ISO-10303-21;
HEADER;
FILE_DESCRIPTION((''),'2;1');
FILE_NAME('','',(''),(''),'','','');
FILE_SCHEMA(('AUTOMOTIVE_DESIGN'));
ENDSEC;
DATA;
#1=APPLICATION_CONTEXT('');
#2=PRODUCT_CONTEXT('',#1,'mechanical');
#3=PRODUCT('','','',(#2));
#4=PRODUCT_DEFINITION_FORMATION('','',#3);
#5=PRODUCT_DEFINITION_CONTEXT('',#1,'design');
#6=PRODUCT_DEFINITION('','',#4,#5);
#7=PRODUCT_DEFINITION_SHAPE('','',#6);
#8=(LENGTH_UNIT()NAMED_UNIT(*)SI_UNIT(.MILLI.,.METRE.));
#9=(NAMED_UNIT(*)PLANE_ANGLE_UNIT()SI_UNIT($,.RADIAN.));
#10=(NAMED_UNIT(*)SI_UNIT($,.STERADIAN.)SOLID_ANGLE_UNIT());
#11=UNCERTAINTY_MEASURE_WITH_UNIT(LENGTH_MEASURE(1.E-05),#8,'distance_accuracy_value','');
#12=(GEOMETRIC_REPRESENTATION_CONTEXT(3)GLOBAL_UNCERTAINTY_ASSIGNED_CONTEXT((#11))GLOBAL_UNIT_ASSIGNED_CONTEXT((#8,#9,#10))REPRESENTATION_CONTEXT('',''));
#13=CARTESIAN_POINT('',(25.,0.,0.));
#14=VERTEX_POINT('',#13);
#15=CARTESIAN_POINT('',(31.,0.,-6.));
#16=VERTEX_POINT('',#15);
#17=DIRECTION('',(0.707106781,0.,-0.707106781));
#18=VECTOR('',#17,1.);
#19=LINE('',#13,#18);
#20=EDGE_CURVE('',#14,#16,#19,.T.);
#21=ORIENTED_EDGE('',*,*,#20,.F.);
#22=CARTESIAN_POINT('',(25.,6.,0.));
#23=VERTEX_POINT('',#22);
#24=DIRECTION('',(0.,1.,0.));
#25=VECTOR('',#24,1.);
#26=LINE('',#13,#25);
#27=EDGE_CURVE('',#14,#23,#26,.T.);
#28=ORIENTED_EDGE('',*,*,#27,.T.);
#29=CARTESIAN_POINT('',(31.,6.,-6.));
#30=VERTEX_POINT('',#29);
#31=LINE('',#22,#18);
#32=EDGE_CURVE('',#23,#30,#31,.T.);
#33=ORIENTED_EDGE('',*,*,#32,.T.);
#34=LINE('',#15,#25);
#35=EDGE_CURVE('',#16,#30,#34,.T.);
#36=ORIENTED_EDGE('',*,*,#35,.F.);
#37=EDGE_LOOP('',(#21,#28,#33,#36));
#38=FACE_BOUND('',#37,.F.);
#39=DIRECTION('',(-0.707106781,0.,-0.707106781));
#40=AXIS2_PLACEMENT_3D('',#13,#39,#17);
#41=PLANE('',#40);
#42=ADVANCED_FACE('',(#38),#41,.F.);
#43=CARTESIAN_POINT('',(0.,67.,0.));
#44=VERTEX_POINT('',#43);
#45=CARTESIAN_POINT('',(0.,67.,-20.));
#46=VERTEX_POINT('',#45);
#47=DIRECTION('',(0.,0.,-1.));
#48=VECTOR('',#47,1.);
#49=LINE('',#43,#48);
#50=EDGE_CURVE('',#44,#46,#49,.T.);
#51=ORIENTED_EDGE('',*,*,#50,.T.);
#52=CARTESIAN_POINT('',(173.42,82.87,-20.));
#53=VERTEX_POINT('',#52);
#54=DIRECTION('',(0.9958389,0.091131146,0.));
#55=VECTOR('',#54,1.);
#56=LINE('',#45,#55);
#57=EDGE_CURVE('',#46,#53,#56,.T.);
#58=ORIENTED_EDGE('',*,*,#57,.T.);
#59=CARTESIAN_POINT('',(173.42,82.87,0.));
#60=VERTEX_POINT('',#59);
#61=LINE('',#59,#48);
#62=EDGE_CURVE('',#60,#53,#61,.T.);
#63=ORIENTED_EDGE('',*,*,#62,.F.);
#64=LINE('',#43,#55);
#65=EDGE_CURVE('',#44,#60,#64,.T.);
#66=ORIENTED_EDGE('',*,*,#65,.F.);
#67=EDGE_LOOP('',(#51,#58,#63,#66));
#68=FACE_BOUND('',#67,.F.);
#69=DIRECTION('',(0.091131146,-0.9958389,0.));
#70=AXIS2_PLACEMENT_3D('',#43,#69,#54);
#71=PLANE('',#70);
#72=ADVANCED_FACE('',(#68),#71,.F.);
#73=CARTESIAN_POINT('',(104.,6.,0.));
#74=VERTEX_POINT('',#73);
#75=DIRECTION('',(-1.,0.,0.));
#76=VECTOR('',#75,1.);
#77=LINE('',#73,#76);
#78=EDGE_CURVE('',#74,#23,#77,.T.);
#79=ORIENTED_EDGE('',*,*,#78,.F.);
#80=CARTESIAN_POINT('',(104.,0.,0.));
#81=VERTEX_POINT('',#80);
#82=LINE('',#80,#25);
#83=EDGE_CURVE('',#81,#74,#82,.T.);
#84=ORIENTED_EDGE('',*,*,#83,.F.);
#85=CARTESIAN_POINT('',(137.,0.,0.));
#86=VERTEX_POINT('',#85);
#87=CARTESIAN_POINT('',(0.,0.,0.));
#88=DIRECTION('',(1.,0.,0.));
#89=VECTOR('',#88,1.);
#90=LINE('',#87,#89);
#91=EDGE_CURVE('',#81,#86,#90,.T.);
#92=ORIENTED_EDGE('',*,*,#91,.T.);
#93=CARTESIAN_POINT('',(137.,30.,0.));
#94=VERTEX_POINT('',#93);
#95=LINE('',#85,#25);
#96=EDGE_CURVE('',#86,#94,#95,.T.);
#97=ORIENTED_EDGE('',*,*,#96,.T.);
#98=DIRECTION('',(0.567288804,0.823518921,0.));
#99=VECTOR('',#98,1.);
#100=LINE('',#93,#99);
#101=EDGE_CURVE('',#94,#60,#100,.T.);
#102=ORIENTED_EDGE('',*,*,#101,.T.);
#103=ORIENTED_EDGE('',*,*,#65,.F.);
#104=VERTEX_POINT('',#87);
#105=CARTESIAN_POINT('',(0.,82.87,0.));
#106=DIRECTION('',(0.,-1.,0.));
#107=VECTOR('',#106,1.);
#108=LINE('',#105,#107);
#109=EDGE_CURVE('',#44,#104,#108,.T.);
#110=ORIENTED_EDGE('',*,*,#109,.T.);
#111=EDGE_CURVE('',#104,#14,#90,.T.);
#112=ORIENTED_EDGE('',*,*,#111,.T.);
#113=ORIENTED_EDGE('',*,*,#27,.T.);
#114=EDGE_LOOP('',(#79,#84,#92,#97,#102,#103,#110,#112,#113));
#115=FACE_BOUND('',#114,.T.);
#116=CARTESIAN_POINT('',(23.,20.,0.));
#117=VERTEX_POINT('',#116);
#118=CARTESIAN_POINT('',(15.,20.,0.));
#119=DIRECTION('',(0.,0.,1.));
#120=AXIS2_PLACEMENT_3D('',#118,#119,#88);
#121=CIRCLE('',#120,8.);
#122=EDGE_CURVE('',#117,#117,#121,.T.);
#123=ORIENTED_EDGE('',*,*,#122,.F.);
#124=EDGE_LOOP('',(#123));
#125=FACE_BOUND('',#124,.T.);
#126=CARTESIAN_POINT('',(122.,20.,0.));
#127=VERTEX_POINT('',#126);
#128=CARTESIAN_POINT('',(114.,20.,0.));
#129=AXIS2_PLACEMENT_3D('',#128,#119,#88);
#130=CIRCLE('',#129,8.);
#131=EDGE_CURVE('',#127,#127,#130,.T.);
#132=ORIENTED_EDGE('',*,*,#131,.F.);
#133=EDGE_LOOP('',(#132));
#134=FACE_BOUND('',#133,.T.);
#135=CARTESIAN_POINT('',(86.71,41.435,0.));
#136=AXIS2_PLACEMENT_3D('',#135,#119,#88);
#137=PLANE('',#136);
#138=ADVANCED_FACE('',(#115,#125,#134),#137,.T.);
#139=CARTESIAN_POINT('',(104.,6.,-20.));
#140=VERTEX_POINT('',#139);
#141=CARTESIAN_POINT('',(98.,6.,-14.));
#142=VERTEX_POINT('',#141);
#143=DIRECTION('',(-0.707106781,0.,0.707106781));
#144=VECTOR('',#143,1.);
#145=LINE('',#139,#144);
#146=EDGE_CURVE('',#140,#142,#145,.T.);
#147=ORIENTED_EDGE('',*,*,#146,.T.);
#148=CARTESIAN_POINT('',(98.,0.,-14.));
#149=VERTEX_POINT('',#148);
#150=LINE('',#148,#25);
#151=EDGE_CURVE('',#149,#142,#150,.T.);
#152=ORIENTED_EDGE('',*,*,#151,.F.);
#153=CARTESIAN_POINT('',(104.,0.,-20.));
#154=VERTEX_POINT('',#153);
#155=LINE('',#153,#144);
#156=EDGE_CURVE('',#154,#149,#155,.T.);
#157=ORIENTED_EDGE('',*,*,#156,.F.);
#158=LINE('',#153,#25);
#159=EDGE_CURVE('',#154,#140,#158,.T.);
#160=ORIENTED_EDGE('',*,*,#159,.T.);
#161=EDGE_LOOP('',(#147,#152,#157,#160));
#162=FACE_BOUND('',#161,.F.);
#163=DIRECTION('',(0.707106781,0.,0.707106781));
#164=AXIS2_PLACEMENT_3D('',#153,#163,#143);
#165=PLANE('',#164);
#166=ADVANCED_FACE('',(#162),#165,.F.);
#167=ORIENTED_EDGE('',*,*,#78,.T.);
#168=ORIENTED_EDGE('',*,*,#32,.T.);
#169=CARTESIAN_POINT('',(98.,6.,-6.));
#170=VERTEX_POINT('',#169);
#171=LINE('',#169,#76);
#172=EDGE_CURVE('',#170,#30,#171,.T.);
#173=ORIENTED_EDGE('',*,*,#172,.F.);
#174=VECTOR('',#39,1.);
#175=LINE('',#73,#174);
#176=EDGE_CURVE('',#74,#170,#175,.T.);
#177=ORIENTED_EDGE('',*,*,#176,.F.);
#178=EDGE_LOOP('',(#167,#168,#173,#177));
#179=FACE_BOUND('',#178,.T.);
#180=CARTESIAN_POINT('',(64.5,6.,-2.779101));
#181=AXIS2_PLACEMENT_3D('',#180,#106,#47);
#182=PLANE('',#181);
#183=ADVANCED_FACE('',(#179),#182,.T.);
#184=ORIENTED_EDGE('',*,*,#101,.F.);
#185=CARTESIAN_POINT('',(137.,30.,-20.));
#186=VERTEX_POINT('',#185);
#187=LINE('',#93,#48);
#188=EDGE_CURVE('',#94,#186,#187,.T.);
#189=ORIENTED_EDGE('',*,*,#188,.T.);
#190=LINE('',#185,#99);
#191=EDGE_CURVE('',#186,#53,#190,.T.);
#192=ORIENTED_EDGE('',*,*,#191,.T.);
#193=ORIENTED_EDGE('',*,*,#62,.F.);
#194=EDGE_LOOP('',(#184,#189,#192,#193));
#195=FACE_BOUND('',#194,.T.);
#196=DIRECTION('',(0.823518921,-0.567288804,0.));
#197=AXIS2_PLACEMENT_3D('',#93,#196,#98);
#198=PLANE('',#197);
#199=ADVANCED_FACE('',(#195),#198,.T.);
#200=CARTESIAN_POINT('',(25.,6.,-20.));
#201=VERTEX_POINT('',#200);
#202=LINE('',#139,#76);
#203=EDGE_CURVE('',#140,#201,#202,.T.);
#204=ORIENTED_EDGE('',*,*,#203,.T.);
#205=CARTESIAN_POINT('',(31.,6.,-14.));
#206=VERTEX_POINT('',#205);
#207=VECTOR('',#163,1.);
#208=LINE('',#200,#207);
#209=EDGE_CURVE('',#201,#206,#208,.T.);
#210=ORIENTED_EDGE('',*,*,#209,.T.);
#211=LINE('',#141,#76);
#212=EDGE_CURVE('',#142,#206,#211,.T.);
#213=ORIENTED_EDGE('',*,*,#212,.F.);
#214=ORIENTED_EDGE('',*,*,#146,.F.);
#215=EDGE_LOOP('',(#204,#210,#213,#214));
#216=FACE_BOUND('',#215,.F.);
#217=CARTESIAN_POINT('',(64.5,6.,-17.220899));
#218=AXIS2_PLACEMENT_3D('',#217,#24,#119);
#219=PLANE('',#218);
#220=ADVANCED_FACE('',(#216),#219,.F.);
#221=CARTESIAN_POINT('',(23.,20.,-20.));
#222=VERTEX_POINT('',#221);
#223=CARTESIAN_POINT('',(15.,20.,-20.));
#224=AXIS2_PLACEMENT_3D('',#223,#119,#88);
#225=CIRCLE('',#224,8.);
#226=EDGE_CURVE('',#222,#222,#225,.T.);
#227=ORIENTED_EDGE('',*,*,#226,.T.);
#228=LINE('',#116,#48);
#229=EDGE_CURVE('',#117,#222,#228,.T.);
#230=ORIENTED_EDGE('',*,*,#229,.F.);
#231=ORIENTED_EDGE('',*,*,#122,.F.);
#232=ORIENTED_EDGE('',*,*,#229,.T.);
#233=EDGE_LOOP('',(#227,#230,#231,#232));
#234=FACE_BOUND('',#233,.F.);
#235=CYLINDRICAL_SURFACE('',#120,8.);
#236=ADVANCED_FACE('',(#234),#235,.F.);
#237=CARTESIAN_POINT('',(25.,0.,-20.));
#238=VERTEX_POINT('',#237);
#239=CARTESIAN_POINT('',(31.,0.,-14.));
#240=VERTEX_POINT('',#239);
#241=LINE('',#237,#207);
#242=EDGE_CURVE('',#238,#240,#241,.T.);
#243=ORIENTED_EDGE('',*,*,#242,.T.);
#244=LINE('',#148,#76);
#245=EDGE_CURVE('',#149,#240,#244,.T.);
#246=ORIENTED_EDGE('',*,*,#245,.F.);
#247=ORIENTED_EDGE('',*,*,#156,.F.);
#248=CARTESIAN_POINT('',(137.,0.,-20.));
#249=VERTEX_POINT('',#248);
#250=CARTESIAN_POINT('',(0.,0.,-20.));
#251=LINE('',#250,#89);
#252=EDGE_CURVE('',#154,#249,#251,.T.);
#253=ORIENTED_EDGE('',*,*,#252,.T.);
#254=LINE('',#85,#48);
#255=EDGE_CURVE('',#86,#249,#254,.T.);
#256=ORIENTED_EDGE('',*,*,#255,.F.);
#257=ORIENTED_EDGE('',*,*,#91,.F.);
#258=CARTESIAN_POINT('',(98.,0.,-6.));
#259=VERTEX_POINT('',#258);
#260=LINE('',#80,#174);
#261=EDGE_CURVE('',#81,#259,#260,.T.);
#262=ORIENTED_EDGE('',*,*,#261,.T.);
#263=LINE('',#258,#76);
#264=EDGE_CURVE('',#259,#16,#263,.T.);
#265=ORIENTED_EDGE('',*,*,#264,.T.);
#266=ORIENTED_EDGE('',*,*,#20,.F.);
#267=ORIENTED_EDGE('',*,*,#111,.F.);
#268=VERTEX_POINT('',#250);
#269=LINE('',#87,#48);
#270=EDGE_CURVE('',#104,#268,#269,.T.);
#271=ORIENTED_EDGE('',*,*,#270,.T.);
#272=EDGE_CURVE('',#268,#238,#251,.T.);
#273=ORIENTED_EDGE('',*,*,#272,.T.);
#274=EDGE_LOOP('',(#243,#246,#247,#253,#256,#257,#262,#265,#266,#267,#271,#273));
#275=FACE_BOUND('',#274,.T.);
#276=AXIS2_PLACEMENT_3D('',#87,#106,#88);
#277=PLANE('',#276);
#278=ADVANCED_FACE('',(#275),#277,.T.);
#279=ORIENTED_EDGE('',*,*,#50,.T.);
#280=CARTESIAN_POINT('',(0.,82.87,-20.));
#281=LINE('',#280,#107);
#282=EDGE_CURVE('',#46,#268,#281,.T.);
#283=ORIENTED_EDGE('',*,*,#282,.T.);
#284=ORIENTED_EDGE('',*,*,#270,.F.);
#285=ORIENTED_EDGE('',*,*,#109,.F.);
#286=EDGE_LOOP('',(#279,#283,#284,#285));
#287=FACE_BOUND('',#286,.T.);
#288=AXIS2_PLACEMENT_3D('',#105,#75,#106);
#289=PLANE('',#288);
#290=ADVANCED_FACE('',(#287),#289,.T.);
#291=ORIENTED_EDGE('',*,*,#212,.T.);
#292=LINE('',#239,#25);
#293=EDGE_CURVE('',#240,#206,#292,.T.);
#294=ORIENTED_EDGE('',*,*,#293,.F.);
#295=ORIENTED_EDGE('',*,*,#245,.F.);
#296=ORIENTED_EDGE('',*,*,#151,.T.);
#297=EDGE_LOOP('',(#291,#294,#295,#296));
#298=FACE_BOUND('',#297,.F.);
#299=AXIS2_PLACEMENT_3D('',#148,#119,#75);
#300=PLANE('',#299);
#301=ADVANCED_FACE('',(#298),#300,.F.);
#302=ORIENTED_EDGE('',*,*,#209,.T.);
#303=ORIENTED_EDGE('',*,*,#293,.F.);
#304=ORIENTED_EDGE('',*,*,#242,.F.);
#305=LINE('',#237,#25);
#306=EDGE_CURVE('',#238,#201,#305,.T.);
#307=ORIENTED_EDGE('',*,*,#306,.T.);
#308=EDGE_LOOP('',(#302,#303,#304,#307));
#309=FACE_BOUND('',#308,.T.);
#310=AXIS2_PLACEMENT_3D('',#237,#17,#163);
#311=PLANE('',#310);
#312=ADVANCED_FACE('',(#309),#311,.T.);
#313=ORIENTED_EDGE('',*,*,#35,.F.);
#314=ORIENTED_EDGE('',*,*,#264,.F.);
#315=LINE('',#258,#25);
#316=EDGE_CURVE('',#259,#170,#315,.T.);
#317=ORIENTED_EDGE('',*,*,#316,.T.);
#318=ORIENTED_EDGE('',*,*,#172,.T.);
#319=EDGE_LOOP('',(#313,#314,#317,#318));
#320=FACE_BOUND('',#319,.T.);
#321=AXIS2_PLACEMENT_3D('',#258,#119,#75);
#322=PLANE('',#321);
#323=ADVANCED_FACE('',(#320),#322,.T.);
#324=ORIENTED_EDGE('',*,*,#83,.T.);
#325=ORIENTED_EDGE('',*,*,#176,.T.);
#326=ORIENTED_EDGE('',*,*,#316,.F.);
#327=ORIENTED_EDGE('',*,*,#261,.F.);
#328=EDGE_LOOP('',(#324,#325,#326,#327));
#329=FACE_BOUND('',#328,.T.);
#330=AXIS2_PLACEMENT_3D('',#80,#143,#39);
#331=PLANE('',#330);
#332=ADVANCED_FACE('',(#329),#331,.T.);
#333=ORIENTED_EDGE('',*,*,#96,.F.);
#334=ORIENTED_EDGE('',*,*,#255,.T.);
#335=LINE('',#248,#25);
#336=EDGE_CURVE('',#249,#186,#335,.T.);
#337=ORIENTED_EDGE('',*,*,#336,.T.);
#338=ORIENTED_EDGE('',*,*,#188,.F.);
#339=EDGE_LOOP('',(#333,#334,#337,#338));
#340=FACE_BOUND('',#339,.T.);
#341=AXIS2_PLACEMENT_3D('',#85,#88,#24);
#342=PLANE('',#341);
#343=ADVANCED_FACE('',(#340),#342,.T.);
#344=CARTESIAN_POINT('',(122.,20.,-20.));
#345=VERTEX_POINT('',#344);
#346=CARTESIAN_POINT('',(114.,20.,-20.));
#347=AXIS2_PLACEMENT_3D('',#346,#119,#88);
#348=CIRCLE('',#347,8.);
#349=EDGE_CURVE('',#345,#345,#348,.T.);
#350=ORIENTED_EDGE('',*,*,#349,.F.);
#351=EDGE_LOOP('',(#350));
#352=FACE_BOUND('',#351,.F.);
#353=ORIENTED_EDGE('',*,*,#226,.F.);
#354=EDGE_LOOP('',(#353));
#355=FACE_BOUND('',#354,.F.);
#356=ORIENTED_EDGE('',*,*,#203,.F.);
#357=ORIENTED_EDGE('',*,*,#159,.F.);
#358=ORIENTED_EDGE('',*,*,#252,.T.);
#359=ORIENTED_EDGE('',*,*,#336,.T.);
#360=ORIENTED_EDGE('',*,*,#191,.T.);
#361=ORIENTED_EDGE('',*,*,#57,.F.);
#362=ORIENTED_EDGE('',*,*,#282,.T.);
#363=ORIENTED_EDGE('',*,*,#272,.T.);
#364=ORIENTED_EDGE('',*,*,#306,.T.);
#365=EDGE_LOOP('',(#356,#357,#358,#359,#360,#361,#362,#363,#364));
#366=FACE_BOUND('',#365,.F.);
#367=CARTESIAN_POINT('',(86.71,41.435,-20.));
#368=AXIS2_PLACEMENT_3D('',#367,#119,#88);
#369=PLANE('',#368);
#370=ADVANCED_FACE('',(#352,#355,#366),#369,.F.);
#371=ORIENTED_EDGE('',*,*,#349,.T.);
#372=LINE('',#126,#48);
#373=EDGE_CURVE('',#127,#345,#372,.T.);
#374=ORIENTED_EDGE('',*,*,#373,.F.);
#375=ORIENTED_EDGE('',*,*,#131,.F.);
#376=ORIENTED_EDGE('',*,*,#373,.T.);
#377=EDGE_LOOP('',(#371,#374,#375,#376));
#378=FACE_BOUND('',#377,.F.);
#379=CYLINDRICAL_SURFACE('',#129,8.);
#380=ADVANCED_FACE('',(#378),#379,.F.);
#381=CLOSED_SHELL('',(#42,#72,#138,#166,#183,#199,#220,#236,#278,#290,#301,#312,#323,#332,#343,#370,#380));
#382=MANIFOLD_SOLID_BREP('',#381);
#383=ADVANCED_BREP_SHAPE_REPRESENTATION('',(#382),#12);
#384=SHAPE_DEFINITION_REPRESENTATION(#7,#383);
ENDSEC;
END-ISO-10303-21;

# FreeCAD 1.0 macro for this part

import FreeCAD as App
import Part
import Sketcher
Q = App.Units.Quantity

doc = App.newDocument("Part")
body = doc.addObject("PartDesign::Body", "Body")

# Sketch on XY plane
sketch1 = body.newObject("Sketcher::SketchObject", "Sketch")
sketch1.AttachmentSupport = (doc.getObject("XY_Plane"), [""])
sketch1.MapMode = "FlatFace"
sketch1.addGeometry([
    Part.LineSegment(App.Vector(0, 83, 0), App.Vector(0, 0, 0)),
    Part.LineSegment(App.Vector(0, 0, 0), App.Vector(173, 0, 0)),
    Part.LineSegment(App.Vector(173, 0, 0), App.Vector(173, 83, 0)),
    Part.LineSegment(App.Vector(173, 83, 0), App.Vector(0, 83, 0)),
], False)
sketch1.addConstraint([
    Sketcher.Constraint("Coincident", 0, 2, 1, 1),
    Sketcher.Constraint("Coincident", 1, 2, 2, 1),
    Sketcher.Constraint("Coincident", 2, 2, 3, 1),
    Sketcher.Constraint("Coincident", 3, 2, 0, 1),
    Sketcher.Constraint("Vertical", 0),
    Sketcher.Constraint("Horizontal", 1),
    Sketcher.Constraint("Vertical", 2),
    Sketcher.Constraint("Horizontal", 3),
    Sketcher.Constraint("Coincident", 0, 2, -1, 1),
    Sketcher.Constraint("DistanceX", 1, 1, 1, 2, Q("173.42 mm")),
    Sketcher.Constraint("DistanceY", 0, 2, 0, 1, Q("82.87 mm")),
])
pad1 = body.newObject("PartDesign::Pad", "Pad")
pad1.Profile = sketch1
pad1.Length = 20
pad1.Reversed = True

# Sketch on XY plane
sketch2 = body.newObject("Sketcher::SketchObject", "Sketch001")
sketch2.AttachmentSupport = (doc.getObject("XY_Plane"), [""])
sketch2.MapMode = "FlatFace"
sketch2.addGeometry([
    Part.LineSegment(App.Vector(137, 30, 0), App.Vector(137, 0, 0)),
    Part.LineSegment(App.Vector(137, 0, 0), App.Vector(173, 0, 0)),
    Part.LineSegment(App.Vector(173, 0, 0), App.Vector(173, 83, 0)),
    Part.LineSegment(App.Vector(173, 83, 0), App.Vector(137, 30, 0)),
], False)
sketch2.addConstraint([
    Sketcher.Constraint("Coincident", 0, 2, 1, 1),
    Sketcher.Constraint("Coincident", 1, 2, 2, 1),
    Sketcher.Constraint("Coincident", 2, 2, 3, 1),
    Sketcher.Constraint("Coincident", 3, 2, 0, 1),
    Sketcher.Constraint("Vertical", 0),
    Sketcher.Constraint("Horizontal", 1),
    Sketcher.Constraint("Vertical", 2),
    Sketcher.Constraint("PointOnObject", 0, 2, -1),
    Sketcher.Constraint("DistanceY", 0, 2, 0, 1, Q("30 mm")),
    Sketcher.Constraint("DistanceX", -1, 1, 0, 2, Q("137 mm")),
    Sketcher.Constraint("Distance", 3, Q("64.2 mm")),
    Sketcher.Constraint("DistanceX", 1, 1, 1, 2, Q("36.42 mm")),
])
pocket1 = body.newObject("PartDesign::Pocket", "Pocket")
pocket1.Profile = sketch2
pocket1.Length = 20

# Sketch on XY plane
sketch3 = body.newObject("Sketcher::SketchObject", "Sketch002")
sketch3.AttachmentSupport = (doc.getObject("XY_Plane"), [""])
sketch3.MapMode = "FlatFace"
sketch3.addGeometry([
    Part.LineSegment(App.Vector(0, 83, 0), App.Vector(0, 67, 0)),
    Part.LineSegment(App.Vector(0, 67, 0), App.Vector(173, 83, 0)),
    Part.LineSegment(App.Vector(173, 83, 0), App.Vector(0, 83, 0)),
], False)
sketch3.addConstraint([
    Sketcher.Constraint("Coincident", 0, 2, 1, 1),
    Sketcher.Constraint("Coincident", 1, 2, 2, 1),
    Sketcher.Constraint("Coincident", 2, 2, 0, 1),
    Sketcher.Constraint("Vertical", 0),
    Sketcher.Constraint("Horizontal", 2),
    Sketcher.Constraint("PointOnObject", 0, 2, -2),
    Sketcher.Constraint("DistanceY", -1, 1, 0, 2, Q("67 mm")),
    Sketcher.Constraint("DistanceX", 2, 2, 2, 1, Q("173.42 mm")),
    Sketcher.Constraint("DistanceY", 0, 2, 0, 1, Q("15.87 mm")),
])
pocket2 = body.newObject("PartDesign::Pocket", "Pocket001")
pocket2.Profile = sketch3
pocket2.Length = 20

# Sketch on XY plane
sketch4 = body.newObject("Sketcher::SketchObject", "Sketch003")
sketch4.AttachmentSupport = (doc.getObject("XY_Plane"), [""])
sketch4.MapMode = "FlatFace"
sketch4.addGeometry([
    Part.Circle(App.Vector(15, 20, 0), App.Vector(0, 0, 1), 8),
    Part.Circle(App.Vector(114, 20, 0), App.Vector(0, 0, 1), 8),
], False)
sketch4.addConstraint([
    Sketcher.Constraint("Equal", 0, 1),
    Sketcher.Constraint("Horizontal", 0, 3, 1, 3),
    Sketcher.Constraint("Diameter", 0, Q("16 mm")),
    Sketcher.Constraint("DistanceX", -1, 1, 0, 3, Q("15 mm")),
    Sketcher.Constraint("DistanceY", -1, 1, 0, 3, Q("20 mm")),
    Sketcher.Constraint("DistanceX", -1, 1, 1, 3, Q("114 mm")),
])
pocket3 = body.newObject("PartDesign::Pocket", "Pocket002")
pocket3.Profile = sketch4
pocket3.Length = 20

# Sketch on XZ plane
sketch5 = body.newObject("Sketcher::SketchObject", "Sketch004")
sketch5.AttachmentSupport = (doc.getObject("XZ_Plane"), [""])
sketch5.MapMode = "FlatFace"
sketch5.addGeometry([
    Part.LineSegment(App.Vector(98, -6, 0), App.Vector(104, 0, 0)),
    Part.LineSegment(App.Vector(104, 0, 0), App.Vector(25, 0, 0)),
    Part.LineSegment(App.Vector(25, 0, 0), App.Vector(31, -6, 0)),
    Part.LineSegment(App.Vector(31, -6, 0), App.Vector(98, -6, 0)),
], False)
sketch5.addConstraint([
    Sketcher.Constraint("Coincident", 0, 2, 1, 1),
    Sketcher.Constraint("Coincident", 1, 2, 2, 1),
    Sketcher.Constraint("Coincident", 2, 2, 3, 1),
    Sketcher.Constraint("Coincident", 3, 2, 0, 1),
    Sketcher.Constraint("Horizontal", 1),
    Sketcher.Constraint("Horizontal", 3),
    Sketcher.Constraint("PointOnObject", 0, 2, -1),
    Sketcher.Constraint("Perpendicular", 0, 2),
    Sketcher.Constraint("Equal", 0, 2),
    Sketcher.Constraint("DistanceX", 1, 2, 1, 1, Q("79 mm")),
    Sketcher.Constraint("DistanceX", 3, 1, 3, 2, Q("67 mm")),
    Sketcher.Constraint("DistanceX", -1, 1, 0, 2, Q("104 mm")),
])
pocket4 = body.newObject("PartDesign::Pocket", "Pocket003")
pocket4.Profile = sketch5
pocket4.Length = 6

# Sketch on XZ plane
sketch6 = body.newObject("Sketcher::SketchObject", "Sketch005")
sketch6.AttachmentSupport = (doc.getObject("XZ_Plane"), [""])
sketch6.MapMode = "FlatFace"
sketch6.addGeometry([
    Part.LineSegment(App.Vector(25, -20, 0), App.Vector(104, -20, 0)),
    Part.LineSegment(App.Vector(104, -20, 0), App.Vector(98, -14, 0)),
    Part.LineSegment(App.Vector(98, -14, 0), App.Vector(31, -14, 0)),
    Part.LineSegment(App.Vector(31, -14, 0), App.Vector(25, -20, 0)),
], False)
sketch6.addConstraint([
    Sketcher.Constraint("Coincident", 0, 2, 1, 1),
    Sketcher.Constraint("Coincident", 1, 2, 2, 1),
    Sketcher.Constraint("Coincident", 2, 2, 3, 1),
    Sketcher.Constraint("Coincident", 3, 2, 0, 1),
    Sketcher.Constraint("Horizontal", 0),
    Sketcher.Constraint("Horizontal", 2),
    Sketcher.Constraint("Perpendicular", 1, 3),
    Sketcher.Constraint("Equal", 1, 3),
    Sketcher.Constraint("DistanceX", 0, 1, 0, 2, Q("79 mm")),
    Sketcher.Constraint("DistanceX", 2, 2, 2, 1, Q("67 mm")),
    Sketcher.Constraint("DistanceX", -1, 1, 0, 2, Q("104 mm")),
    Sketcher.Constraint("DistanceY", 0, 2, -1, 1, Q("20 mm")),
])
pocket5 = body.newObject("PartDesign::Pocket", "Pocket004")
pocket5.Profile = sketch6
pocket5.Length = 6

doc.recompute()
